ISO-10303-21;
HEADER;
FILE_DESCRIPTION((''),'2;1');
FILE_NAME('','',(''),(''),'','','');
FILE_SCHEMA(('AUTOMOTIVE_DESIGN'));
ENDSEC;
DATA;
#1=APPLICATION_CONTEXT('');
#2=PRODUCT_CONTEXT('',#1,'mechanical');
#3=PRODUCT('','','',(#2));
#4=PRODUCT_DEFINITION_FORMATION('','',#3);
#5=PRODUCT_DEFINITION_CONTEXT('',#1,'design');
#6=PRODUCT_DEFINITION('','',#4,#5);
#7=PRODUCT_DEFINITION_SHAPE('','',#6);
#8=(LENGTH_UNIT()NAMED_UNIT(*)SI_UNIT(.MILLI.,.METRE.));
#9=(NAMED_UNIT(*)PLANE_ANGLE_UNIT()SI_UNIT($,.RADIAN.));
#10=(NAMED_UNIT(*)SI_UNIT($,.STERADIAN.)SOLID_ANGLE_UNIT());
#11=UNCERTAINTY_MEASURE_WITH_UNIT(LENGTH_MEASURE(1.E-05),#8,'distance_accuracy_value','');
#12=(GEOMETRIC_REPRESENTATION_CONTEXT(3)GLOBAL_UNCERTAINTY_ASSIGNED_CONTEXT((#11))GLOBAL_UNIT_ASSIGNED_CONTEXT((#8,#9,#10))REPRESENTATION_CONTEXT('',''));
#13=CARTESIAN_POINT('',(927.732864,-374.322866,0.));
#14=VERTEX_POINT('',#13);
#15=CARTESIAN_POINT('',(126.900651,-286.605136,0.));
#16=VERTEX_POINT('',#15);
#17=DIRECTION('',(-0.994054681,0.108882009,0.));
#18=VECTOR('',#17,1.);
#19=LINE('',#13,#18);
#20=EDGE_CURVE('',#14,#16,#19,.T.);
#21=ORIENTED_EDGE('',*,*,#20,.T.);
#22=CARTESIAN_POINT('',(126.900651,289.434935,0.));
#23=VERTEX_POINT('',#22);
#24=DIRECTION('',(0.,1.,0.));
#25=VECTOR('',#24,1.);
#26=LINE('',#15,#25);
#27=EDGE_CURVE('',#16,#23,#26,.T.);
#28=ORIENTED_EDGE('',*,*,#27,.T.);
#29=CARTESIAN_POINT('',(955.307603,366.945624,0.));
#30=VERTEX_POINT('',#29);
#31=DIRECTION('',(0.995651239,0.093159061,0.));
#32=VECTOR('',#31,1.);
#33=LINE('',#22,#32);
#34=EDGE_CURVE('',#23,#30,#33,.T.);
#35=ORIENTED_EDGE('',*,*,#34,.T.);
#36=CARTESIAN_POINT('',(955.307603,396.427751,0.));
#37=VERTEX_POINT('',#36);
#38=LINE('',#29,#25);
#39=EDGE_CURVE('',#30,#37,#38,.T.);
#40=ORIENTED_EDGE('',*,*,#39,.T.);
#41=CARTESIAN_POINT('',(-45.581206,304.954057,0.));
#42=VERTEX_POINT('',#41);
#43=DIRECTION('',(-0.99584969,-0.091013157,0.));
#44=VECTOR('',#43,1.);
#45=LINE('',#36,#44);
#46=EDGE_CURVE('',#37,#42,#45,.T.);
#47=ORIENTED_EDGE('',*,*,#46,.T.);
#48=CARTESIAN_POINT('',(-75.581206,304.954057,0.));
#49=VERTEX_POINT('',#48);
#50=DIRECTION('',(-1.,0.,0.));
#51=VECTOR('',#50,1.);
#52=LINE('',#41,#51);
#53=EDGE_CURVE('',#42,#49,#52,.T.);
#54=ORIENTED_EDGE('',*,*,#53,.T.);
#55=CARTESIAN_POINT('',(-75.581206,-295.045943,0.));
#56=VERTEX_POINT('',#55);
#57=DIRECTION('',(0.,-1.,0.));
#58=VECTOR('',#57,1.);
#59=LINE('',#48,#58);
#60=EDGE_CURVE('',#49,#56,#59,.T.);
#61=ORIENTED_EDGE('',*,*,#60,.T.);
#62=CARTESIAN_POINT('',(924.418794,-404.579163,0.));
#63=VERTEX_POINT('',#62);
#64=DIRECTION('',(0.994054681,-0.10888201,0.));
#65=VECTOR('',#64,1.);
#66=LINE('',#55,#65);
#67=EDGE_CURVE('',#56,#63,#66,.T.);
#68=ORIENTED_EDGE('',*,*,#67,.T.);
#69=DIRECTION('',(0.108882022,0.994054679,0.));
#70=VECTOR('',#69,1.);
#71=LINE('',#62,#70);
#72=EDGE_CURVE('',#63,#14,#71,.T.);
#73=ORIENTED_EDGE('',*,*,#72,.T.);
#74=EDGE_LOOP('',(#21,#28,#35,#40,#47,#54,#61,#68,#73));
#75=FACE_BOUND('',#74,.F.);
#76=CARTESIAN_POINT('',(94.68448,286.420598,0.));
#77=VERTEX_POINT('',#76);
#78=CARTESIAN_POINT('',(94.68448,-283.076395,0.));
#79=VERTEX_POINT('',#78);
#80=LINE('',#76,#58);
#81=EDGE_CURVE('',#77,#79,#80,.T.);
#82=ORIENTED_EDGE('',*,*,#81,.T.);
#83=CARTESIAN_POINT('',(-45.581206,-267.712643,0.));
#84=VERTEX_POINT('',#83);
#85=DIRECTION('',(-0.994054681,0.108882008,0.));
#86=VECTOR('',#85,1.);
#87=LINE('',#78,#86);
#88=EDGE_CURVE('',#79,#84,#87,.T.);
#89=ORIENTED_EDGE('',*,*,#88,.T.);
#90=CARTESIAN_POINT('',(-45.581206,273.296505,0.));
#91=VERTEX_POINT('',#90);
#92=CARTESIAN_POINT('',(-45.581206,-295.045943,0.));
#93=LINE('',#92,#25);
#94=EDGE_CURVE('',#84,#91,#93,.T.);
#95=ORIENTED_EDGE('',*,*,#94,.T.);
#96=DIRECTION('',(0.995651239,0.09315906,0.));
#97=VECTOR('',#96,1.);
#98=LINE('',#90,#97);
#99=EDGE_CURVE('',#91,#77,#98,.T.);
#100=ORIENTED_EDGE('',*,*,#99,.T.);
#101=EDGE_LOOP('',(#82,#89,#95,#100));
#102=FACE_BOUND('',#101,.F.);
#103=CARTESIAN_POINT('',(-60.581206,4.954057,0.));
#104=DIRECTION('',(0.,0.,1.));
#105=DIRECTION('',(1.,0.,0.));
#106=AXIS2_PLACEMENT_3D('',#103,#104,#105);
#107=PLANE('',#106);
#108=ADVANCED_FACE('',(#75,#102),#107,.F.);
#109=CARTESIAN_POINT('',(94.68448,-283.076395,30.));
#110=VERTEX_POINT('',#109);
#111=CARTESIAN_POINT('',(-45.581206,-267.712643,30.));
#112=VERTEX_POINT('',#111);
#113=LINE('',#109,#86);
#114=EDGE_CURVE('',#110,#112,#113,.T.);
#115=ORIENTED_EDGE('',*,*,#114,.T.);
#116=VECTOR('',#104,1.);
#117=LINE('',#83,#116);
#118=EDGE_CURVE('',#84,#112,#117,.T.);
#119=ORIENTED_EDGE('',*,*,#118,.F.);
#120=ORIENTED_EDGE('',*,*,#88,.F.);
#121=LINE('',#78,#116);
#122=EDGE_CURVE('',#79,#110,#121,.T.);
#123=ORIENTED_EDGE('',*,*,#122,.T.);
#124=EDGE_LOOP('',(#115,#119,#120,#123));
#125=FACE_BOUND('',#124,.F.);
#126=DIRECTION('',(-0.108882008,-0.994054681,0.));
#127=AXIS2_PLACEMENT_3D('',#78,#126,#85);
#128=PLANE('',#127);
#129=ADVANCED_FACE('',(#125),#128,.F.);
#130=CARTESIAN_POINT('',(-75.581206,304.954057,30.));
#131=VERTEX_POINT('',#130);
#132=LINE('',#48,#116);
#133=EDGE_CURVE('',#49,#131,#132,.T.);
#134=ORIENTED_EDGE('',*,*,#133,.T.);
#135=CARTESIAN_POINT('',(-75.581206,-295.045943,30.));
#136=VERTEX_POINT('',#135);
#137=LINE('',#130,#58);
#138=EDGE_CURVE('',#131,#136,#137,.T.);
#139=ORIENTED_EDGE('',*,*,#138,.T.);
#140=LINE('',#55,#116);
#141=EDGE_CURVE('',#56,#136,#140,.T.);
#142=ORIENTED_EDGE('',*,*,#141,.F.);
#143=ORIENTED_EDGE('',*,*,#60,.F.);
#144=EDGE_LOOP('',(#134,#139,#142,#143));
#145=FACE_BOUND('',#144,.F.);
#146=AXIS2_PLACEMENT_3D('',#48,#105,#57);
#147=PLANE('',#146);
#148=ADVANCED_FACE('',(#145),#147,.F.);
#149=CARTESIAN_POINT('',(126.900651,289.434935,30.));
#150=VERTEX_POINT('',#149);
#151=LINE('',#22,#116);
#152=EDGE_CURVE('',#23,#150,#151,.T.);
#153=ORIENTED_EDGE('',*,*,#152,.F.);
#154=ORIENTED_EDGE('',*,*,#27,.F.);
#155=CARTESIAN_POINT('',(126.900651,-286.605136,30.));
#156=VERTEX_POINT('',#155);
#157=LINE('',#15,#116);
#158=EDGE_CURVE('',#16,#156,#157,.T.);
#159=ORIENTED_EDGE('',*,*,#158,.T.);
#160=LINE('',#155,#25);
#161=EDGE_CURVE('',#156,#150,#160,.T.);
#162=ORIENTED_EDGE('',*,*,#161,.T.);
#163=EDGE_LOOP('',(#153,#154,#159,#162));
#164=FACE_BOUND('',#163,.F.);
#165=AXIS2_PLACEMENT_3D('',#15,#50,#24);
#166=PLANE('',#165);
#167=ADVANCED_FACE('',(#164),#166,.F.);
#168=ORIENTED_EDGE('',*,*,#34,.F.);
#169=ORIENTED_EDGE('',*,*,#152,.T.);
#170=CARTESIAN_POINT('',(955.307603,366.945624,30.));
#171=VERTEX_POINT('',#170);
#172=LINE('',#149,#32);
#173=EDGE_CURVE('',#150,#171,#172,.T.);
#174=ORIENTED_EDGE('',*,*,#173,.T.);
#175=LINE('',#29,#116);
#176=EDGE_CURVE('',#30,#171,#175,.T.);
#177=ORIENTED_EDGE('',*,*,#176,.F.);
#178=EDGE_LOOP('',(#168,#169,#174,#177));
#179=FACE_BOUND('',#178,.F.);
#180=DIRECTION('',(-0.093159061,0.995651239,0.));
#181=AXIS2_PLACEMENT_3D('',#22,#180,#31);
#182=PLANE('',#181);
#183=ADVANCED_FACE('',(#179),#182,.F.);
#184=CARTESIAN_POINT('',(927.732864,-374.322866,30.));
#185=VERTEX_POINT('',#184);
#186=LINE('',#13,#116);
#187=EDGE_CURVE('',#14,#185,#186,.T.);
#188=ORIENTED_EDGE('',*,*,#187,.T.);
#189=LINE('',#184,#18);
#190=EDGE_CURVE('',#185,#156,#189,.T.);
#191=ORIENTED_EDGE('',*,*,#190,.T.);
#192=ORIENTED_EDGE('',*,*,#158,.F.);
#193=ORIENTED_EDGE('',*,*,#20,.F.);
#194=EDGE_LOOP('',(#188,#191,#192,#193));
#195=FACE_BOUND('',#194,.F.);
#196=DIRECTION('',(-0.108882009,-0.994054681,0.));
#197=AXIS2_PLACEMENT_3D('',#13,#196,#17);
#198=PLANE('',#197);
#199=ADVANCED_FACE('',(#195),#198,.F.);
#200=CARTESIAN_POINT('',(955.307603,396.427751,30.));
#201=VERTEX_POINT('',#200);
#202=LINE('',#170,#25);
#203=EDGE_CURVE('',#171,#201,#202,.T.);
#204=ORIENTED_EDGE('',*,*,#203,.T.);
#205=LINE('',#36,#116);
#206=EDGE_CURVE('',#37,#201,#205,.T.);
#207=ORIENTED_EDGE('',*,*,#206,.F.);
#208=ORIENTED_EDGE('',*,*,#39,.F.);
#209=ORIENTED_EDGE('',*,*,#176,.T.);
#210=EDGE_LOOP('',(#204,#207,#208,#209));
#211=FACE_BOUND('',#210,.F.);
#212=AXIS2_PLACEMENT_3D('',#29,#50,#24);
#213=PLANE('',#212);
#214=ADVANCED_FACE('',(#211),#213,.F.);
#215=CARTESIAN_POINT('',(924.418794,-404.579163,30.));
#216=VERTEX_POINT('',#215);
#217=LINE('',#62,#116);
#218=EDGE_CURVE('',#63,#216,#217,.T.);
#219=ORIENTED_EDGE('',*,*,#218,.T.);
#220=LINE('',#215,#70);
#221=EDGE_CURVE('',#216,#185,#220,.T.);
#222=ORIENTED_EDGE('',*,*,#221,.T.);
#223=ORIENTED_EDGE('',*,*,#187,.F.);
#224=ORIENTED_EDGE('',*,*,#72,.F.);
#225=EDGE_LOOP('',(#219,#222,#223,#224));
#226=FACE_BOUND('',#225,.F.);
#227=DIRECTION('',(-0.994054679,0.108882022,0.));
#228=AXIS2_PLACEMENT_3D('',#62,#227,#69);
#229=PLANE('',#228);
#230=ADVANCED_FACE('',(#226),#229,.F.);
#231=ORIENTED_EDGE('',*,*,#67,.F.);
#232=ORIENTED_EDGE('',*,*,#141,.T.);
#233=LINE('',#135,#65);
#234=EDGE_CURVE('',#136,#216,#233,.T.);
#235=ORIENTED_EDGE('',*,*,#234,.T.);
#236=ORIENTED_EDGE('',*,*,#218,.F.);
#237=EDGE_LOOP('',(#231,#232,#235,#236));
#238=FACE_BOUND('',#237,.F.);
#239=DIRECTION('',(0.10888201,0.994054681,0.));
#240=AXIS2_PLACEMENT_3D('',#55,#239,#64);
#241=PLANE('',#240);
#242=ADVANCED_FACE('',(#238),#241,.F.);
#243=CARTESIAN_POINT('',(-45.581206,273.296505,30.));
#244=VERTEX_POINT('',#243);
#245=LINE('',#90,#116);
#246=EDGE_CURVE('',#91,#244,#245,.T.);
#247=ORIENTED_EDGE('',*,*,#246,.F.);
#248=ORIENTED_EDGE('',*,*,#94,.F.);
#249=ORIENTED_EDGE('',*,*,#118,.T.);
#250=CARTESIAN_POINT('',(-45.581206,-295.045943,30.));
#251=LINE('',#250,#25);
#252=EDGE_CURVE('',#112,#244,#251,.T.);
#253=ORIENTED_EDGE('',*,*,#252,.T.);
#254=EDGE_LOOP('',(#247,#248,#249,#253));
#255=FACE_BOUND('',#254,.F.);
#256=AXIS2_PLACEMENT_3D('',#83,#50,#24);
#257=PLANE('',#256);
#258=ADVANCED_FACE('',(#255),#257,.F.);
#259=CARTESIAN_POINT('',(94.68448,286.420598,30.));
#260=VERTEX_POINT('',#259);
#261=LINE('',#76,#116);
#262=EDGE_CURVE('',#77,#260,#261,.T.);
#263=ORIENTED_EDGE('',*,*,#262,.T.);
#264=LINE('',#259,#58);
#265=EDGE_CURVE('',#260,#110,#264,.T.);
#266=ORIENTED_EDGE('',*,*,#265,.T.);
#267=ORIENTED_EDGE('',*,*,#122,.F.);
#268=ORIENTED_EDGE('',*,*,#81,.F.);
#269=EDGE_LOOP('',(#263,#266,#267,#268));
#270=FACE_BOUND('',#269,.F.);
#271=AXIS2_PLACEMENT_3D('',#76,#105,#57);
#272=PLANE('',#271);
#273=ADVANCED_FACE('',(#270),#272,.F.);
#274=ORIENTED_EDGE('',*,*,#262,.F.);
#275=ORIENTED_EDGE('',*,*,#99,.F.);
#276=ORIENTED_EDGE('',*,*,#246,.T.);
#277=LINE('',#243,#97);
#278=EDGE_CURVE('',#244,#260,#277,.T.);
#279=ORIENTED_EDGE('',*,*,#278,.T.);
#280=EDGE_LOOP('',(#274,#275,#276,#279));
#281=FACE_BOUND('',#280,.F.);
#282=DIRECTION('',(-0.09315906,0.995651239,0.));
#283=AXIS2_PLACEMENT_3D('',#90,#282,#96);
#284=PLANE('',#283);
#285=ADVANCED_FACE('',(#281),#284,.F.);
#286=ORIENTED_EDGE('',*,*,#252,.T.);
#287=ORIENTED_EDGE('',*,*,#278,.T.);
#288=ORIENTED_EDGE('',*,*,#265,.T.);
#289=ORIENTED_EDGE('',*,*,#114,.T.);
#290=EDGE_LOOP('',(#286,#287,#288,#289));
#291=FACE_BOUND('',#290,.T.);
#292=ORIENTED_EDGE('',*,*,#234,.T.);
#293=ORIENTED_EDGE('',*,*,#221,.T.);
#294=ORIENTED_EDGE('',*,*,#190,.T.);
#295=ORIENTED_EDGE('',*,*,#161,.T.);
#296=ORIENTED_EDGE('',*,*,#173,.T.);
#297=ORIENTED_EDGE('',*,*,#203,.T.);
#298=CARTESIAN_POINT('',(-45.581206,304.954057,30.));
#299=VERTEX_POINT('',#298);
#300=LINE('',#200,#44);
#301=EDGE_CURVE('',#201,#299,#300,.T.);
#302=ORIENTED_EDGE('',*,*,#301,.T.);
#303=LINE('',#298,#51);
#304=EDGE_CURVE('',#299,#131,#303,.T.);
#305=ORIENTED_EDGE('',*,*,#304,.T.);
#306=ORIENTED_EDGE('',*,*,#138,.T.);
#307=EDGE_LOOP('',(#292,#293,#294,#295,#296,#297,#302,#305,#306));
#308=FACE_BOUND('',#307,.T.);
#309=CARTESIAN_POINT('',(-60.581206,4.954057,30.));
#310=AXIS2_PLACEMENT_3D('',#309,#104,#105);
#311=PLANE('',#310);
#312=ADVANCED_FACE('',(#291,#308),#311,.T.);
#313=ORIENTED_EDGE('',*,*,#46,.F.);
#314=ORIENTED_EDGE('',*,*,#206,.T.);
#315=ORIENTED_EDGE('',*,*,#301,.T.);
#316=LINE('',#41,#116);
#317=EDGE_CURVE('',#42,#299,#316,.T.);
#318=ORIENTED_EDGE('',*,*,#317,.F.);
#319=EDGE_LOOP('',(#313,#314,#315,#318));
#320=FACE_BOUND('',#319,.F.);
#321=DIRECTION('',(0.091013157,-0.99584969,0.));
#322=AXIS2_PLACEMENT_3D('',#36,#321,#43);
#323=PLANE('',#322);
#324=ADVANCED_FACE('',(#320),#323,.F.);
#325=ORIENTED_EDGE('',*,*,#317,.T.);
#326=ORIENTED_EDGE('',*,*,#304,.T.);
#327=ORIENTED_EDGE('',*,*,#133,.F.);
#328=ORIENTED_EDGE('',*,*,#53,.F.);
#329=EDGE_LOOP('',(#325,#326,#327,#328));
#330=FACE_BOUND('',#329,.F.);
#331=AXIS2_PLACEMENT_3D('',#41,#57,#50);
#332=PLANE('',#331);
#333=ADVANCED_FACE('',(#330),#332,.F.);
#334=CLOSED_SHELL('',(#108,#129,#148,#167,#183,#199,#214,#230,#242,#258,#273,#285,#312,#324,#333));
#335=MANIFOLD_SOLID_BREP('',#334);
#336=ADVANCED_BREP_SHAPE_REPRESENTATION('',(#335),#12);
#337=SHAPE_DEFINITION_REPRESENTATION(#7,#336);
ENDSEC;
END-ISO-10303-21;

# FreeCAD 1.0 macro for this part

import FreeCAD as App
import Part
import Sketcher
from FreeCAD import Vector

doc = App.newDocument("Part")
body = doc.addObject("PartDesign::Body", "Body")

# Sketch on XY plane
sketch1 = doc.addObject("Sketcher::SketchObject", "Sketch")
body.addObject(sketch1)
sketch1.AttachmentSupport = (doc.XY_Plane, [""])
sketch1.MapMode = "FlatFace"
sketch1.addGeometry(Part.LineSegment(Vector(-46, 305, 0), Vector(-76, 305, 0)), False)
sketch1.addGeometry(Part.LineSegment(Vector(-76, 305, 0), Vector(-76, -295, 0)), False)
sketch1.addGeometry(Part.LineSegment(Vector(-76, -295, 0), Vector(924, -405, 0)), False)
sketch1.addGeometry(Part.LineSegment(Vector(924, -405, 0), Vector(928, -374, 0)), False)
sketch1.addGeometry(Part.LineSegment(Vector(928, -374, 0), Vector(127, -287, 0)), False)
sketch1.addGeometry(Part.LineSegment(Vector(127, -287, 0), Vector(127, 289, 0)), False)
sketch1.addGeometry(Part.LineSegment(Vector(127, 289, 0), Vector(955, 367, 0)), False)
sketch1.addGeometry(Part.LineSegment(Vector(955, 367, 0), Vector(955, 396, 0)), False)
sketch1.addGeometry(Part.LineSegment(Vector(955, 396, 0), Vector(-46, 305, 0)), False)
sketch1.addGeometry(Part.LineSegment(Vector(95, 286, 0), Vector(95, -283, 0)), False)
sketch1.addGeometry(Part.LineSegment(Vector(95, -283, 0), Vector(-46, -268, 0)), False)
sketch1.addGeometry(Part.LineSegment(Vector(-46, -268, 0), Vector(-46, 273, 0)), False)
sketch1.addGeometry(Part.LineSegment(Vector(-46, 273, 0), Vector(95, 286, 0)), False)
sketch1.addConstraint(Sketcher.Constraint("Coincident", 0, 2, 1, 1))
sketch1.addConstraint(Sketcher.Constraint("Coincident", 1, 2, 2, 1))
sketch1.addConstraint(Sketcher.Constraint("Coincident", 2, 2, 3, 1))
sketch1.addConstraint(Sketcher.Constraint("Coincident", 3, 2, 4, 1))
sketch1.addConstraint(Sketcher.Constraint("Coincident", 4, 2, 5, 1))
sketch1.addConstraint(Sketcher.Constraint("Coincident", 5, 2, 6, 1))
sketch1.addConstraint(Sketcher.Constraint("Coincident", 6, 2, 7, 1))
sketch1.addConstraint(Sketcher.Constraint("Coincident", 7, 2, 8, 1))
sketch1.addConstraint(Sketcher.Constraint("Coincident", 8, 2, 0, 1))
sketch1.addConstraint(Sketcher.Constraint("Coincident", 9, 2, 10, 1))
sketch1.addConstraint(Sketcher.Constraint("Coincident", 10, 2, 11, 1))
sketch1.addConstraint(Sketcher.Constraint("Coincident", 11, 2, 12, 1))
sketch1.addConstraint(Sketcher.Constraint("Coincident", 12, 2, 9, 1))
sketch1.addConstraint(Sketcher.Constraint("Horizontal", 0))
sketch1.addConstraint(Sketcher.Constraint("Vertical", 1))
sketch1.addConstraint(Sketcher.Constraint("Vertical", 5))
sketch1.addConstraint(Sketcher.Constraint("Vertical", 7))
sketch1.addConstraint(Sketcher.Constraint("Vertical", 9))
sketch1.addConstraint(Sketcher.Constraint("Vertical", 11))
sketch1.addConstraint(Sketcher.Constraint("Perpendicular", 2, 3))
sketch1.addConstraint(Sketcher.Constraint("Perpendicular", 3, 4))
sketch1.addConstraint(Sketcher.Constraint("Parallel", 4, 10))
sketch1.addConstraint(Sketcher.Constraint("Parallel", 6, 12))
sketch1.addConstraint(Sketcher.Constraint("Vertical", 8, 2, 10, 2))
sketch1.addConstraint(Sketcher.Constraint("DistanceX", 0, 2, 0, 1, 30.0))
sketch1.addConstraint(Sketcher.Constraint("DistanceY", 1, 2, 1, 1, 600.0))
sketch1.addConstraint(Sketcher.Constraint("DistanceX", 1, 2, 2, 2, 1000.0))
sketch1.addConstraint(Sketcher.Constraint("DistanceY", 5, 1, 5, 2, 576.040071))
sketch1.addConstraint(Sketcher.Constraint("DistanceY", 11, 1, 11, 2, 541.009148))
sketch1.addConstraint(Sketcher.Constraint("DistanceY", -1, 1, 12, 2, 286.420598))
sketch1.addConstraint(Sketcher.Constraint("DistanceY", 3, 2, 5, 2, 663.757801))
sketch1.addConstraint(Sketcher.Constraint("DistanceY", 2, 2, 5, 2, 694.014098))
sketch1.addConstraint(Sketcher.Constraint("DistanceY", 1, 2, 10, 2, 27.3333))
sketch1.addConstraint(Sketcher.Constraint("Distance", 6, 832.025231))
sketch1.addConstraint(Sketcher.Constraint("Distance", 8, 1005.06012))
sketch1.addConstraint(Sketcher.Constraint("DistanceY", 7, 1, 7, 2, 29.482127))
sketch1.addConstraint(Sketcher.Constraint("DistanceY", 9, 2, 9, 1, 569.496993))
sketch1.addConstraint(Sketcher.Constraint("DistanceX", -1, 1, 4, 2, 126.900651))
sketch1.addConstraint(Sketcher.Constraint("DistanceY", -1, 1, 7, 2, 396.427751))
pad1 = doc.addObject("PartDesign::Pad", "Pad")
body.addObject(pad1)
pad1.Profile = sketch1
pad1.Length = 30

doc.recompute()
